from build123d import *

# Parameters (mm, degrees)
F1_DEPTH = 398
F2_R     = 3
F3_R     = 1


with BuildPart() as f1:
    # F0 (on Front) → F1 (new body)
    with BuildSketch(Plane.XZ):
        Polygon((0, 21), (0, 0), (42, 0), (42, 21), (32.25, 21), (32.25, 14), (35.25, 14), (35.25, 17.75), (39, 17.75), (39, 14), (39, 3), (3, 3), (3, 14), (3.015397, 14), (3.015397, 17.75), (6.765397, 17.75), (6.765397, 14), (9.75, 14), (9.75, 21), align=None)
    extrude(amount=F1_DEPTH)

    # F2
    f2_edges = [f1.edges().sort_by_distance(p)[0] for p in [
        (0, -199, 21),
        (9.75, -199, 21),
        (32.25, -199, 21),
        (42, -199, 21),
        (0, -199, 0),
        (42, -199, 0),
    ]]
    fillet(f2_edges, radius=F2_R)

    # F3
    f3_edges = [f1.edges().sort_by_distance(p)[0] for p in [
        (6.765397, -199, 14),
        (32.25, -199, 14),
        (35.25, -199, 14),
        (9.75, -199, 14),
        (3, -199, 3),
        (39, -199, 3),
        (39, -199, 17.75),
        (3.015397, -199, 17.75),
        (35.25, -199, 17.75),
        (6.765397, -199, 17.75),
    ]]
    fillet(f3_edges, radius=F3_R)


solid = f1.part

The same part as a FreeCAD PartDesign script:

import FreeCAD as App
import Part
import Sketcher

V = App.Vector
Q = App.Units.Quantity


def edges_at(feature, points):
    """Names of the edges that pass closest to the given points."""
    edges = feature.Shape.Edges
    near = lambda p: min(range(len(edges)), key=lambda i: edges[i].distToShape(Part.Vertex(*p))[0])
    return sorted({f"Edge{near(p) + 1}" for p in points})

doc = App.newDocument("Part")
body = doc.addObject("PartDesign::Body", "Body")

# Sketch on XZ plane
sketch1 = body.newObject("Sketcher::SketchObject", "Sketch")
sketch1.AttachmentSupport = (doc.getObject("XZ_Plane"), [""])
sketch1.MapMode = "FlatFace"
sketch1.addGeometry([
    Part.LineSegment(V(0, 21, 0), V(0, 0, 0)),  # 0
    Part.LineSegment(V(0, 0, 0), V(42, 0, 0)),  # 1
    Part.LineSegment(V(42, 0, 0), V(42, 21, 0)),  # 2
    Part.LineSegment(V(42, 21, 0), V(32.25, 21, 0)),  # 3
    Part.LineSegment(V(32.25, 21, 0), V(32.25, 14, 0)),  # 4
    Part.LineSegment(V(32.25, 14, 0), V(35.25, 14, 0)),  # 5
    Part.LineSegment(V(35.25, 14, 0), V(35.25, 17.75, 0)),  # 6
    Part.LineSegment(V(35.25, 17.75, 0), V(39, 17.75, 0)),  # 7
    Part.LineSegment(V(39, 17.75, 0), V(39, 3, 0)),  # 8
    Part.LineSegment(V(39, 3, 0), V(3, 3, 0)),  # 9
    Part.LineSegment(V(3, 3, 0), V(3, 14, 0)),  # 10
    Part.LineSegment(V(3, 14, 0), V(3.015, 14, 0)),  # 11
    Part.LineSegment(V(3.015, 14, 0), V(3.015, 17.75, 0)),  # 12
    Part.LineSegment(V(3.015, 17.75, 0), V(6.765, 17.75, 0)),  # 13
    Part.LineSegment(V(6.765, 17.75, 0), V(6.765, 14, 0)),  # 14
    Part.LineSegment(V(6.765, 14, 0), V(9.75, 14, 0)),  # 15
    Part.LineSegment(V(9.75, 14, 0), V(9.75, 21, 0)),  # 16
    Part.LineSegment(V(9.75, 21, 0), V(0, 21, 0)),  # 17
], False)
sketch1.addConstraint([
    Sketcher.Constraint("Coincident", 0, 2, 1, 1),
    Sketcher.Constraint("Coincident", 1, 2, 2, 1),
    Sketcher.Constraint("Coincident", 2, 2, 3, 1),
    Sketcher.Constraint("Coincident", 3, 2, 4, 1),
    Sketcher.Constraint("Coincident", 4, 2, 5, 1),
    Sketcher.Constraint("Coincident", 5, 2, 6, 1),
    Sketcher.Constraint("Coincident", 6, 2, 7, 1),
    Sketcher.Constraint("Coincident", 7, 2, 8, 1),
    Sketcher.Constraint("Coincident", 8, 2, 9, 1),
    Sketcher.Constraint("Coincident", 9, 2, 10, 1),
    Sketcher.Constraint("Coincident", 10, 2, 11, 1),
    Sketcher.Constraint("Coincident", 11, 2, 12, 1),
    Sketcher.Constraint("Coincident", 12, 2, 13, 1),
    Sketcher.Constraint("Coincident", 13, 2, 14, 1),
    Sketcher.Constraint("Coincident", 14, 2, 15, 1),
    Sketcher.Constraint("Coincident", 15, 2, 16, 1),
    Sketcher.Constraint("Coincident", 16, 2, 17, 1),
    Sketcher.Constraint("Coincident", 17, 2, 0, 1),
    Sketcher.Constraint("Vertical", 0),
    Sketcher.Constraint("Horizontal", 1),
    Sketcher.Constraint("Vertical", 2),
    Sketcher.Constraint("Horizontal", 3),
    Sketcher.Constraint("Vertical", 4),
    Sketcher.Constraint("Horizontal", 5),
    Sketcher.Constraint("Vertical", 6),
    Sketcher.Constraint("Horizontal", 7),
    Sketcher.Constraint("Vertical", 8),
    Sketcher.Constraint("Horizontal", 9),
    Sketcher.Constraint("Vertical", 10),
    Sketcher.Constraint("Horizontal", 11),
    Sketcher.Constraint("Vertical", 12),
    Sketcher.Constraint("Horizontal", 13),
    Sketcher.Constraint("Vertical", 14),
    Sketcher.Constraint("Horizontal", 15),
    Sketcher.Constraint("Vertical", 16),
    Sketcher.Constraint("Horizontal", 17),
    Sketcher.Constraint("Coincident", 0, 2, -1, 1),
    Sketcher.Constraint("Horizontal", 5, 2, 10, 2),
    Sketcher.Constraint("Horizontal", 7, 2, 12, 2),
    Sketcher.Constraint("Horizontal", 11, 2, 14, 2),
    Sketcher.Constraint("Horizontal", 3, 2, 16, 2),
    Sketcher.Constraint("Equal", 7, 13),
    Sketcher.Constraint("Equal", 3, 17),
    Sketcher.Constraint("Equal", 13, 6),
    Sketcher.Constraint("DistanceX", 1, 1, 1, 2, Q("42 mm")),
    Sketcher.Constraint("DistanceX", 5, 1, 5, 2, Q("3 mm")),
    Sketcher.Constraint("DistanceX", 9, 2, 9, 1, Q("36 mm")),
    Sketcher.Constraint("DistanceY", 0, 2, 0, 1, Q("21 mm")),
    Sketcher.Constraint("DistanceY", 4, 2, 4, 1, Q("7 mm")),
    Sketcher.Constraint("DistanceY", 10, 1, 10, 2, Q("11 mm")),
    Sketcher.Constraint("DistanceX", -1, 1, 7, 2, Q("39 mm")),
    Sketcher.Constraint("DistanceX", 3, 2, 3, 1, Q("9.75 mm")),
    Sketcher.Constraint("DistanceX", 11, 1, 11, 2, Q("0.015397 mm")),
])
pad1 = body.newObject("PartDesign::Pad", "Pad")
pad1.Profile = sketch1
pad1.Length = 398
doc.recompute()

fillet = body.newObject("PartDesign::Fillet", "Fillet")
fillet.Base = (pad1, edges_at(pad1, [
    (0, -199, 21),
    (9.75, -199, 21),
    (32.25, -199, 21),
    (42, -199, 21),
    (0, -199, 0),
    (42, -199, 0),
]))
fillet.Radius = 3
doc.recompute()

fillet2 = body.newObject("PartDesign::Fillet", "Fillet001")
fillet2.Base = (fillet, edges_at(fillet, [
    (6.765, -199, 14),
    (32.25, -199, 14),
    (35.25, -199, 14),
    (9.75, -199, 14),
    (3, -199, 3),
    (39, -199, 3),
    (39, -199, 17.75),
    (3.015, -199, 17.75),
    (35.25, -199, 17.75),
    (6.765, -199, 17.75),
]))
fillet2.Radius = 1

doc.recompute()
